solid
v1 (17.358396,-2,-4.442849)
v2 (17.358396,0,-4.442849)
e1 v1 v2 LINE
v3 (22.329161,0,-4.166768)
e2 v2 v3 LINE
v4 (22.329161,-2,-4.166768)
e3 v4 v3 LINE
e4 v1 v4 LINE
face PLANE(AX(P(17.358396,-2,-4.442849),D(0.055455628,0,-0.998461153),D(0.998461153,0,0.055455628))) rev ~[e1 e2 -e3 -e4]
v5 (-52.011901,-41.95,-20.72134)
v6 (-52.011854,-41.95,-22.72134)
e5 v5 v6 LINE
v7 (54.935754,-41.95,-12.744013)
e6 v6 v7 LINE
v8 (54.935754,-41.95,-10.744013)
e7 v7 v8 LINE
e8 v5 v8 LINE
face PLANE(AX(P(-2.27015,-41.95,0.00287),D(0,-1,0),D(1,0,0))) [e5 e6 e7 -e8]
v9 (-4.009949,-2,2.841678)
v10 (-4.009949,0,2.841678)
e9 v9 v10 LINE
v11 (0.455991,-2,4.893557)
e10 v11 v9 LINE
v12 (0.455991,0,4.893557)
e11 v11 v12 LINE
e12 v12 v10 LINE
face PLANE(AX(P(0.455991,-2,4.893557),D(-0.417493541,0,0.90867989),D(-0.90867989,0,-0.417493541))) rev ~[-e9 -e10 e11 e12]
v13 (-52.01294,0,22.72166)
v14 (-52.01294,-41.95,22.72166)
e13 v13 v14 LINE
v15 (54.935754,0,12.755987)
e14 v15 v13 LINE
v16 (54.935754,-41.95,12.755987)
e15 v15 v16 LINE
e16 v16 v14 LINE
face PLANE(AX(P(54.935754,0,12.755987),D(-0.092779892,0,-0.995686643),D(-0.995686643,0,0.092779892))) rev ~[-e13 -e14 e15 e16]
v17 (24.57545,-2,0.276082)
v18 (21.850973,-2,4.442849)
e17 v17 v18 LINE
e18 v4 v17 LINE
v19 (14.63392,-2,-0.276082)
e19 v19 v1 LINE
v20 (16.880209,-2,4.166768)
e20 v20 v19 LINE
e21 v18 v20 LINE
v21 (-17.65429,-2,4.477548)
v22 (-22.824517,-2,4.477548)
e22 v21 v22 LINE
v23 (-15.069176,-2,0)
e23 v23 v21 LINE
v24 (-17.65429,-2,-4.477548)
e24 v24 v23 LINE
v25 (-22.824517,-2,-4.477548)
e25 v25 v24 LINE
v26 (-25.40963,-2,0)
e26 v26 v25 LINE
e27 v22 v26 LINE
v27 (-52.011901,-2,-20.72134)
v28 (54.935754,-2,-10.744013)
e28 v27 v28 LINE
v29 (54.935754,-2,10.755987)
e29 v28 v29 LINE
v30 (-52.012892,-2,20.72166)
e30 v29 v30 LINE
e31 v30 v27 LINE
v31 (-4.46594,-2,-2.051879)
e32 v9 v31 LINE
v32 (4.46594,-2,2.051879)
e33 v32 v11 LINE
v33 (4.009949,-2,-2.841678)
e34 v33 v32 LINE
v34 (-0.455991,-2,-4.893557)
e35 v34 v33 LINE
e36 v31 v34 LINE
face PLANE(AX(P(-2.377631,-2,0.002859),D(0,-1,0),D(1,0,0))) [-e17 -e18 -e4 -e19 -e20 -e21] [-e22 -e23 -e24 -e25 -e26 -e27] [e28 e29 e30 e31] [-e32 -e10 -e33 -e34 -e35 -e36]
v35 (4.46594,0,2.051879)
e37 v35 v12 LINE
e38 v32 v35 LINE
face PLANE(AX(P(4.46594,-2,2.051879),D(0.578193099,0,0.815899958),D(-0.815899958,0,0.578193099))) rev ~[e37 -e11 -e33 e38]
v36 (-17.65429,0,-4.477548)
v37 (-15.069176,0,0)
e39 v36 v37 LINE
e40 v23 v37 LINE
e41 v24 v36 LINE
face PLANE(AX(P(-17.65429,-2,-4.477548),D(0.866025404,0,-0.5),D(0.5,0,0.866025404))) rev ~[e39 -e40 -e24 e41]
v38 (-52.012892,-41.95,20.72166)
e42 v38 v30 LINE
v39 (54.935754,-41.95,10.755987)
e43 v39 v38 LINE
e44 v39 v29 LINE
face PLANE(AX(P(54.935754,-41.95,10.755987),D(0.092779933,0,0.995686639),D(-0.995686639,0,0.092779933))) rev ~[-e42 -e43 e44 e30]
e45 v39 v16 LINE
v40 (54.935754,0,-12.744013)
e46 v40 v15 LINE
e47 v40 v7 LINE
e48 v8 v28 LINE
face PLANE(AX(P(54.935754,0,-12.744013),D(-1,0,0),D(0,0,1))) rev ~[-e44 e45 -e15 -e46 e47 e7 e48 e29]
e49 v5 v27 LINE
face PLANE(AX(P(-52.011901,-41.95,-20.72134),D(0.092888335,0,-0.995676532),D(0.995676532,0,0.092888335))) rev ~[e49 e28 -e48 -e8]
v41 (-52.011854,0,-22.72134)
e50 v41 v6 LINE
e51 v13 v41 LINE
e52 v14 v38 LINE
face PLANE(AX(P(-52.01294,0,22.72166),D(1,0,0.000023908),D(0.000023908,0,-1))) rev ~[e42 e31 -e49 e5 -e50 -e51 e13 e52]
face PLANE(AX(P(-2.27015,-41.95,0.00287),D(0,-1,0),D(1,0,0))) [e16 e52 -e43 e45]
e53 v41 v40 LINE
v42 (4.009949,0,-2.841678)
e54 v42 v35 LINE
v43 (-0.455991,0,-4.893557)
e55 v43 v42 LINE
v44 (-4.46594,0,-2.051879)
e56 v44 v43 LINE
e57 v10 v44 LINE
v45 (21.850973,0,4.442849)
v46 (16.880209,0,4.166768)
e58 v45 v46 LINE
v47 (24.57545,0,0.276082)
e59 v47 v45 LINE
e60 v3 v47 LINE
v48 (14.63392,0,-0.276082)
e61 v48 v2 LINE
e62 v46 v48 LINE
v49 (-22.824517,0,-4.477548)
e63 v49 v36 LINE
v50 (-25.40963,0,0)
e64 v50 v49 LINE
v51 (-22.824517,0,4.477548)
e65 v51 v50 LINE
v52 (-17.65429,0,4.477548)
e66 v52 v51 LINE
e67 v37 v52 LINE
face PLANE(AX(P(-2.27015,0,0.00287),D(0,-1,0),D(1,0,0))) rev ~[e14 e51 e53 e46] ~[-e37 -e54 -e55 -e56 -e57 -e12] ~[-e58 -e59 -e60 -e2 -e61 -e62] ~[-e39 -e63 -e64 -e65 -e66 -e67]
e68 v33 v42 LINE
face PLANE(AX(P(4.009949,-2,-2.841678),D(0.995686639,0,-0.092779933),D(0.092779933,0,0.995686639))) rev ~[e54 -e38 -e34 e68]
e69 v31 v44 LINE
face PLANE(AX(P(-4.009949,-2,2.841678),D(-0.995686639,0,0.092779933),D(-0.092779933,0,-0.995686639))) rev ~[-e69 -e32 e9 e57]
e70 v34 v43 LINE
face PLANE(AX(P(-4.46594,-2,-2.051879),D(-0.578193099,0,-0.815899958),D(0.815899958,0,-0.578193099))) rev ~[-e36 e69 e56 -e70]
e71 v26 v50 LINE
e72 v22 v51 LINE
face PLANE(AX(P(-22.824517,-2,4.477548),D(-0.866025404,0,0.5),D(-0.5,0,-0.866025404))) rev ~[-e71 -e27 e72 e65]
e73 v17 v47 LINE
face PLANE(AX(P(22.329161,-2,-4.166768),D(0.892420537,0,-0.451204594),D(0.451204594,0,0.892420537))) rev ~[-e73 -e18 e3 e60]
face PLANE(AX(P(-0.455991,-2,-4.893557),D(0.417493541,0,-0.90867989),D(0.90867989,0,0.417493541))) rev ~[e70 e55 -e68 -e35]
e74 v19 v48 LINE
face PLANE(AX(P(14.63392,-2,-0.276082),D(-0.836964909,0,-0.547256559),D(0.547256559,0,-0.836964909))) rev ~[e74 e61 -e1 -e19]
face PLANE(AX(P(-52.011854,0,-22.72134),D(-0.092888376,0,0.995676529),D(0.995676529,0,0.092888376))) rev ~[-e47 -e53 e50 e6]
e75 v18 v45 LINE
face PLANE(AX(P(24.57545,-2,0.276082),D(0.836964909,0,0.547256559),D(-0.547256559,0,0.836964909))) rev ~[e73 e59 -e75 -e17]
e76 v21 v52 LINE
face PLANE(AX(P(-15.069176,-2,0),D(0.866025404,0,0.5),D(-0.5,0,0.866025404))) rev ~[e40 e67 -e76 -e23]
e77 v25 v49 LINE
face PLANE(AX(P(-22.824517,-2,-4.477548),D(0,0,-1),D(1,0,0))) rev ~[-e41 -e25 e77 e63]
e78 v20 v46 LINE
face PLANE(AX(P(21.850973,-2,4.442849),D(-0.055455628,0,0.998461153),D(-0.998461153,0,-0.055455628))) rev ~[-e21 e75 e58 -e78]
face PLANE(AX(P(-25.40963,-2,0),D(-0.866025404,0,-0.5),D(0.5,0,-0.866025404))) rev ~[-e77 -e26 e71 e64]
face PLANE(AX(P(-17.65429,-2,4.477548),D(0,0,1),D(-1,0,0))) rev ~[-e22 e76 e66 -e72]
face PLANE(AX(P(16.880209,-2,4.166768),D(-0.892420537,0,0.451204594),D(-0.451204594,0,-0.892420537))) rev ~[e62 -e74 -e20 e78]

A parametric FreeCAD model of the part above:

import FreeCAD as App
import Part
import Sketcher

V = App.Vector
Q = App.Units.Quantity

doc = App.newDocument("Part")
body = doc.addObject("PartDesign::Body", "Body")

sketch1 = doc.addObject("Sketcher::SketchObject", "Sketch")
body.addObject(sketch1)
sketch1.AttachmentSupport = (doc.XZ_Plane, [""])
sketch1.MapMode = "FlatFace"
sketch1.addGeometry(Part.LineSegment(V(55, -13, 0), V(55, 13, 0)), False)
sketch1.addGeometry(Part.LineSegment(V(55, 13, 0), V(-52, 23, 0)), False)
sketch1.addGeometry(Part.LineSegment(V(-52, 23, 0), V(-52, -23, 0)), False)
sketch1.addGeometry(Part.LineSegment(V(-52, -23, 0), V(55, -13, 0)), False)
sketch1.addConstraint(Sketcher.Constraint("Coincident", 0, 2, 1, 1))
sketch1.addConstraint(Sketcher.Constraint("Coincident", 1, 2, 2, 1))
sketch1.addConstraint(Sketcher.Constraint("Coincident", 2, 2, 3, 1))
sketch1.addConstraint(Sketcher.Constraint("Coincident", 3, 2, 0, 1))
sketch1.addConstraint(Sketcher.Constraint("Vertical", 0))
sketch1.addConstraint(Sketcher.Constraint("Equal", 1, 3))
sketch1.addConstraint(Sketcher.Constraint("DistanceY", 0, 1, 0, 2, 25.5))
sketch1.addConstraint(Sketcher.Constraint("Distance", 1, 107.412))
sketch1.addConstraint(Sketcher.Constraint("Distance", 2, 45.443))
sketch1.addConstraint(Sketcher.Constraint("DistanceX", 1, 2, -1, 1, 52.01294))
sketch1.addConstraint(Sketcher.Constraint("DistanceY", -1, 1, 1, 2, 22.72166))
sketch1.addConstraint(Sketcher.Constraint("DistanceX", -1, 1, 0, 2, 54.935754))
pad1 = doc.addObject("PartDesign::Pad", "Pad")
body.addObject(pad1)
pad1.Profile = sketch1
pad1.Length = 41.95

sketch2 = doc.addObject("Sketcher::SketchObject", "Sketch001")
body.addObject(sketch2)
sketch2.AttachmentSupport = (doc.XZ_Plane, [""])
sketch2.MapMode = "FlatFace"
sketch2.AttachmentOffset = App.Placement(V(0, 0, 41.95), App.Rotation())
sketch2.addGeometry(Part.LineSegment(V(55, 11, 0), V(-52, 21, 0)), False)
sketch2.addGeometry(Part.LineSegment(V(-52, 21, 0), V(-52, -21, 0)), False)
sketch2.addGeometry(Part.LineSegment(V(-52, -21, 0), V(55, -11, 0)), False)
sketch2.addGeometry(Part.LineSegment(V(55, -11, 0), V(55, 11, 0)), False)
sketch2.addConstraint(Sketcher.Constraint("Coincident", 0, 2, 1, 1))
sketch2.addConstraint(Sketcher.Constraint("Coincident", 1, 2, 2, 1))
sketch2.addConstraint(Sketcher.Constraint("Coincident", 2, 2, 3, 1))
sketch2.addConstraint(Sketcher.Constraint("Coincident", 3, 2, 0, 1))
sketch2.addConstraint(Sketcher.Constraint("Vertical", 3))
sketch2.addConstraint(Sketcher.Constraint("DistanceY", 3, 1, 3, 2, 21.5))
sketch2.addConstraint(Sketcher.Constraint("Distance", 1, 41.443))
sketch2.addConstraint(Sketcher.Constraint("DistanceX", 1, 2, -1, 1, 52.011901))
sketch2.addConstraint(Sketcher.Constraint("DistanceY", -1, 1, 0, 2, 20.72166))
sketch2.addConstraint(Sketcher.Constraint("DistanceX", 0, 2, 1, 2, 0.000991))
sketch2.addConstraint(Sketcher.Constraint("Distance", 0, 107.411952))
sketch2.addConstraint(Sketcher.Constraint("Distance", 2, 107.412048))
pocket1 = doc.addObject("PartDesign::Pocket", "Pocket")
body.addObject(pocket1)
pocket1.Profile = sketch2
pocket1.Length = 39.95

sketch3 = doc.addObject("Sketcher::SketchObject", "Sketch002")
body.addObject(sketch3)
sketch3.AttachmentSupport = (doc.XZ_Plane, [""])
sketch3.MapMode = "FlatFace"
sketch3.AttachmentOffset = App.Placement(V(0, 0, 2), App.Rotation())
sketch3.addGeometry(Part.LineSegment(V(-17.7, 4.5, 0), V(-22.8, 4.5, 0)), False)
sketch3.addGeometry(Part.LineSegment(V(-22.8, 4.5, 0), V(-25.4, 0, 0)), False)
sketch3.addGeometry(Part.LineSegment(V(-25.4, 0, 0), V(-22.8, -4.5, 0)), False)
sketch3.addGeometry(Part.LineSegment(V(-22.8, -4.5, 0), V(-17.7, -4.5, 0)), False)
sketch3.addGeometry(Part.LineSegment(V(-17.7, -4.5, 0), V(-15.1, 0, 0)), False)
sketch3.addGeometry(Part.LineSegment(V(-15.1, 0, 0), V(-17.7, 4.5, 0)), False)
sketch3.addGeometry(Part.LineSegment(V(4, -2.8, 0), V(4.5, 2.1, 0)), False)
sketch3.addGeometry(Part.LineSegment(V(4.5, 2.1, 0), V(0.5, 4.9, 0)), False)
sketch3.addGeometry(Part.LineSegment(V(0.5, 4.9, 0), V(-4, 2.8, 0)), False)
sketch3.addGeometry(Part.LineSegment(V(-4, 2.8, 0), V(-4.5, -2.1, 0)), False)
sketch3.addGeometry(Part.LineSegment(V(-4.5, -2.1, 0), V(-0.5, -4.9, 0)), False)
sketch3.addGeometry(Part.LineSegment(V(-0.5, -4.9, 0), V(4, -2.8, 0)), False)
sketch3.addGeometry(Part.LineSegment(V(24.6, 0.3, 0), V(21.9, 4.4, 0)), False)
sketch3.addGeometry(Part.LineSegment(V(21.9, 4.4, 0), V(16.9, 4.2, 0)), False)
sketch3.addGeometry(Part.LineSegment(V(16.9, 4.2, 0), V(14.6, -0.3, 0)), False)
sketch3.addGeometry(Part.LineSegment(V(14.6, -0.3, 0), V(17.4, -4.4, 0)), False)
sketch3.addGeometry(Part.LineSegment(V(17.4, -4.4, 0), V(22.3, -4.2, 0)), False)
sketch3.addGeometry(Part.LineSegment(V(22.3, -4.2, 0), V(24.6, 0.3, 0)), False)
sketch3.addConstraint(Sketcher.Constraint("Coincident", 0, 2, 1, 1))
sketch3.addConstraint(Sketcher.Constraint("Coincident", 1, 2, 2, 1))
sketch3.addConstraint(Sketcher.Constraint("Coincident", 2, 2, 3, 1))
sketch3.addConstraint(Sketcher.Constraint("Coincident", 3, 2, 4, 1))
sketch3.addConstraint(Sketcher.Constraint("Coincident", 4, 2, 5, 1))
sketch3.addConstraint(Sketcher.Constraint("Coincident", 5, 2, 0, 1))
sketch3.addConstraint(Sketcher.Constraint("Coincident", 6, 2, 7, 1))
sketch3.addConstraint(Sketcher.Constraint("Coincident", 7, 2, 8, 1))
sketch3.addConstraint(Sketcher.Constraint("Coincident", 8, 2, 9, 1))
sketch3.addConstraint(Sketcher.Constraint("Coincident", 9, 2, 10, 1))
sketch3.addConstraint(Sketcher.Constraint("Coincident", 10, 2, 11, 1))
sketch3.addConstraint(Sketcher.Constraint("Coincident", 11, 2, 6, 1))
sketch3.addConstraint(Sketcher.Constraint("Coincident", 12, 2, 13, 1))
sketch3.addConstraint(Sketcher.Constraint("Coincident", 13, 2, 14, 1))
sketch3.addConstraint(Sketcher.Constraint("Coincident", 14, 2, 15, 1))
sketch3.addConstraint(Sketcher.Constraint("Coincident", 15, 2, 16, 1))
sketch3.addConstraint(Sketcher.Constraint("Coincident", 16, 2, 17, 1))
sketch3.addConstraint(Sketcher.Constraint("Coincident", 17, 2, 12, 1))
sketch3.addConstraint(Sketcher.Constraint("Horizontal", 0))
sketch3.addConstraint(Sketcher.Constraint("Horizontal", 3))
sketch3.addConstraint(Sketcher.Constraint("Symmetric", 6, 2, 9, 2, -1, 1))
sketch3.addConstraint(Sketcher.Constraint("Symmetric", 7, 2, 10, 2, -1, 1))
sketch3.addConstraint(Sketcher.Constraint("Symmetric", 8, 2, 11, 2, -1, 1))
sketch3.addConstraint(Sketcher.Constraint("Symmetric", 0, 2, 2, 2, -1))
sketch3.addConstraint(Sketcher.Constraint("PointOnObject", 1, 2, -1))
sketch3.addConstraint(Sketcher.Constraint("PointOnObject", 4, 2, -1))
sketch3.addConstraint(Sketcher.Constraint("Parallel", 1, 4))
sketch3.addConstraint(Sketcher.Constraint("Parallel", 2, 5))
sketch3.addConstraint(Sketcher.Constraint("Parallel", 12, 15))
sketch3.addConstraint(Sketcher.Constraint("Parallel", 13, 16))
sketch3.addConstraint(Sketcher.Constraint("Parallel", 14, 17))
sketch3.addConstraint(Sketcher.Constraint("Equal", 6, 7))
sketch3.addConstraint(Sketcher.Constraint("Equal", 7, 8))
sketch3.addConstraint(Sketcher.Constraint("Equal", 12, 13))
sketch3.addConstraint(Sketcher.Constraint("Equal", 13, 14))
sketch3.addConstraint(Sketcher.Constraint("Equal", 14, 15))
sketch3.addConstraint(Sketcher.Constraint("Angle", 1, Q("-120 deg")))
sketch3.addConstraint(Sketcher.Constraint("DistanceY", 6, 2, 8, 2, 0.789799))
sketch3.addConstraint(Sketcher.Constraint("DistanceX", 8, 2, 11, 2, 8.019899))
sketch3.addConstraint(Sketcher.Constraint("DistanceX", 10, 2, 13, 2, 17.336199))
sketch3.addConstraint(Sketcher.Constraint("DistanceY", 15, 2, 12, 2, 8.885699))
sketch3.addConstraint(Sketcher.Constraint("DistanceX", 0, 2, 0, 1, 5.170227))
sketch3.addConstraint(Sketcher.Constraint("DistanceX", 1, 2, -1, 1, 25.40963))
sketch3.addConstraint(Sketcher.Constraint("DistanceX", 3, 2, -1, 1, 17.65429))
sketch3.addConstraint(Sketcher.Constraint("DistanceX", -1, 1, 6, 2, 4.46594))
sketch3.addConstraint(Sketcher.Constraint("DistanceY", -1, 1, 6, 2, 2.051879))
sketch3.addConstraint(Sketcher.Constraint("DistanceY", -1, 1, 12, 2, 4.442849))
sketch3.addConstraint(Sketcher.Constraint("DistanceX", -1, 1, 14, 2, 14.63392))
sketch3.addConstraint(Sketcher.Constraint("DistanceY", 14, 2, -1, 1, 0.276082))
sketch3.addConstraint(Sketcher.Constraint("DistanceX", -1, 1, 16, 2, 22.329161))
pocket2 = doc.addObject("PartDesign::Pocket", "Pocket001")
body.addObject(pocket2)
pocket2.Profile = sketch3
pocket2.Length = 5

doc.recompute()
